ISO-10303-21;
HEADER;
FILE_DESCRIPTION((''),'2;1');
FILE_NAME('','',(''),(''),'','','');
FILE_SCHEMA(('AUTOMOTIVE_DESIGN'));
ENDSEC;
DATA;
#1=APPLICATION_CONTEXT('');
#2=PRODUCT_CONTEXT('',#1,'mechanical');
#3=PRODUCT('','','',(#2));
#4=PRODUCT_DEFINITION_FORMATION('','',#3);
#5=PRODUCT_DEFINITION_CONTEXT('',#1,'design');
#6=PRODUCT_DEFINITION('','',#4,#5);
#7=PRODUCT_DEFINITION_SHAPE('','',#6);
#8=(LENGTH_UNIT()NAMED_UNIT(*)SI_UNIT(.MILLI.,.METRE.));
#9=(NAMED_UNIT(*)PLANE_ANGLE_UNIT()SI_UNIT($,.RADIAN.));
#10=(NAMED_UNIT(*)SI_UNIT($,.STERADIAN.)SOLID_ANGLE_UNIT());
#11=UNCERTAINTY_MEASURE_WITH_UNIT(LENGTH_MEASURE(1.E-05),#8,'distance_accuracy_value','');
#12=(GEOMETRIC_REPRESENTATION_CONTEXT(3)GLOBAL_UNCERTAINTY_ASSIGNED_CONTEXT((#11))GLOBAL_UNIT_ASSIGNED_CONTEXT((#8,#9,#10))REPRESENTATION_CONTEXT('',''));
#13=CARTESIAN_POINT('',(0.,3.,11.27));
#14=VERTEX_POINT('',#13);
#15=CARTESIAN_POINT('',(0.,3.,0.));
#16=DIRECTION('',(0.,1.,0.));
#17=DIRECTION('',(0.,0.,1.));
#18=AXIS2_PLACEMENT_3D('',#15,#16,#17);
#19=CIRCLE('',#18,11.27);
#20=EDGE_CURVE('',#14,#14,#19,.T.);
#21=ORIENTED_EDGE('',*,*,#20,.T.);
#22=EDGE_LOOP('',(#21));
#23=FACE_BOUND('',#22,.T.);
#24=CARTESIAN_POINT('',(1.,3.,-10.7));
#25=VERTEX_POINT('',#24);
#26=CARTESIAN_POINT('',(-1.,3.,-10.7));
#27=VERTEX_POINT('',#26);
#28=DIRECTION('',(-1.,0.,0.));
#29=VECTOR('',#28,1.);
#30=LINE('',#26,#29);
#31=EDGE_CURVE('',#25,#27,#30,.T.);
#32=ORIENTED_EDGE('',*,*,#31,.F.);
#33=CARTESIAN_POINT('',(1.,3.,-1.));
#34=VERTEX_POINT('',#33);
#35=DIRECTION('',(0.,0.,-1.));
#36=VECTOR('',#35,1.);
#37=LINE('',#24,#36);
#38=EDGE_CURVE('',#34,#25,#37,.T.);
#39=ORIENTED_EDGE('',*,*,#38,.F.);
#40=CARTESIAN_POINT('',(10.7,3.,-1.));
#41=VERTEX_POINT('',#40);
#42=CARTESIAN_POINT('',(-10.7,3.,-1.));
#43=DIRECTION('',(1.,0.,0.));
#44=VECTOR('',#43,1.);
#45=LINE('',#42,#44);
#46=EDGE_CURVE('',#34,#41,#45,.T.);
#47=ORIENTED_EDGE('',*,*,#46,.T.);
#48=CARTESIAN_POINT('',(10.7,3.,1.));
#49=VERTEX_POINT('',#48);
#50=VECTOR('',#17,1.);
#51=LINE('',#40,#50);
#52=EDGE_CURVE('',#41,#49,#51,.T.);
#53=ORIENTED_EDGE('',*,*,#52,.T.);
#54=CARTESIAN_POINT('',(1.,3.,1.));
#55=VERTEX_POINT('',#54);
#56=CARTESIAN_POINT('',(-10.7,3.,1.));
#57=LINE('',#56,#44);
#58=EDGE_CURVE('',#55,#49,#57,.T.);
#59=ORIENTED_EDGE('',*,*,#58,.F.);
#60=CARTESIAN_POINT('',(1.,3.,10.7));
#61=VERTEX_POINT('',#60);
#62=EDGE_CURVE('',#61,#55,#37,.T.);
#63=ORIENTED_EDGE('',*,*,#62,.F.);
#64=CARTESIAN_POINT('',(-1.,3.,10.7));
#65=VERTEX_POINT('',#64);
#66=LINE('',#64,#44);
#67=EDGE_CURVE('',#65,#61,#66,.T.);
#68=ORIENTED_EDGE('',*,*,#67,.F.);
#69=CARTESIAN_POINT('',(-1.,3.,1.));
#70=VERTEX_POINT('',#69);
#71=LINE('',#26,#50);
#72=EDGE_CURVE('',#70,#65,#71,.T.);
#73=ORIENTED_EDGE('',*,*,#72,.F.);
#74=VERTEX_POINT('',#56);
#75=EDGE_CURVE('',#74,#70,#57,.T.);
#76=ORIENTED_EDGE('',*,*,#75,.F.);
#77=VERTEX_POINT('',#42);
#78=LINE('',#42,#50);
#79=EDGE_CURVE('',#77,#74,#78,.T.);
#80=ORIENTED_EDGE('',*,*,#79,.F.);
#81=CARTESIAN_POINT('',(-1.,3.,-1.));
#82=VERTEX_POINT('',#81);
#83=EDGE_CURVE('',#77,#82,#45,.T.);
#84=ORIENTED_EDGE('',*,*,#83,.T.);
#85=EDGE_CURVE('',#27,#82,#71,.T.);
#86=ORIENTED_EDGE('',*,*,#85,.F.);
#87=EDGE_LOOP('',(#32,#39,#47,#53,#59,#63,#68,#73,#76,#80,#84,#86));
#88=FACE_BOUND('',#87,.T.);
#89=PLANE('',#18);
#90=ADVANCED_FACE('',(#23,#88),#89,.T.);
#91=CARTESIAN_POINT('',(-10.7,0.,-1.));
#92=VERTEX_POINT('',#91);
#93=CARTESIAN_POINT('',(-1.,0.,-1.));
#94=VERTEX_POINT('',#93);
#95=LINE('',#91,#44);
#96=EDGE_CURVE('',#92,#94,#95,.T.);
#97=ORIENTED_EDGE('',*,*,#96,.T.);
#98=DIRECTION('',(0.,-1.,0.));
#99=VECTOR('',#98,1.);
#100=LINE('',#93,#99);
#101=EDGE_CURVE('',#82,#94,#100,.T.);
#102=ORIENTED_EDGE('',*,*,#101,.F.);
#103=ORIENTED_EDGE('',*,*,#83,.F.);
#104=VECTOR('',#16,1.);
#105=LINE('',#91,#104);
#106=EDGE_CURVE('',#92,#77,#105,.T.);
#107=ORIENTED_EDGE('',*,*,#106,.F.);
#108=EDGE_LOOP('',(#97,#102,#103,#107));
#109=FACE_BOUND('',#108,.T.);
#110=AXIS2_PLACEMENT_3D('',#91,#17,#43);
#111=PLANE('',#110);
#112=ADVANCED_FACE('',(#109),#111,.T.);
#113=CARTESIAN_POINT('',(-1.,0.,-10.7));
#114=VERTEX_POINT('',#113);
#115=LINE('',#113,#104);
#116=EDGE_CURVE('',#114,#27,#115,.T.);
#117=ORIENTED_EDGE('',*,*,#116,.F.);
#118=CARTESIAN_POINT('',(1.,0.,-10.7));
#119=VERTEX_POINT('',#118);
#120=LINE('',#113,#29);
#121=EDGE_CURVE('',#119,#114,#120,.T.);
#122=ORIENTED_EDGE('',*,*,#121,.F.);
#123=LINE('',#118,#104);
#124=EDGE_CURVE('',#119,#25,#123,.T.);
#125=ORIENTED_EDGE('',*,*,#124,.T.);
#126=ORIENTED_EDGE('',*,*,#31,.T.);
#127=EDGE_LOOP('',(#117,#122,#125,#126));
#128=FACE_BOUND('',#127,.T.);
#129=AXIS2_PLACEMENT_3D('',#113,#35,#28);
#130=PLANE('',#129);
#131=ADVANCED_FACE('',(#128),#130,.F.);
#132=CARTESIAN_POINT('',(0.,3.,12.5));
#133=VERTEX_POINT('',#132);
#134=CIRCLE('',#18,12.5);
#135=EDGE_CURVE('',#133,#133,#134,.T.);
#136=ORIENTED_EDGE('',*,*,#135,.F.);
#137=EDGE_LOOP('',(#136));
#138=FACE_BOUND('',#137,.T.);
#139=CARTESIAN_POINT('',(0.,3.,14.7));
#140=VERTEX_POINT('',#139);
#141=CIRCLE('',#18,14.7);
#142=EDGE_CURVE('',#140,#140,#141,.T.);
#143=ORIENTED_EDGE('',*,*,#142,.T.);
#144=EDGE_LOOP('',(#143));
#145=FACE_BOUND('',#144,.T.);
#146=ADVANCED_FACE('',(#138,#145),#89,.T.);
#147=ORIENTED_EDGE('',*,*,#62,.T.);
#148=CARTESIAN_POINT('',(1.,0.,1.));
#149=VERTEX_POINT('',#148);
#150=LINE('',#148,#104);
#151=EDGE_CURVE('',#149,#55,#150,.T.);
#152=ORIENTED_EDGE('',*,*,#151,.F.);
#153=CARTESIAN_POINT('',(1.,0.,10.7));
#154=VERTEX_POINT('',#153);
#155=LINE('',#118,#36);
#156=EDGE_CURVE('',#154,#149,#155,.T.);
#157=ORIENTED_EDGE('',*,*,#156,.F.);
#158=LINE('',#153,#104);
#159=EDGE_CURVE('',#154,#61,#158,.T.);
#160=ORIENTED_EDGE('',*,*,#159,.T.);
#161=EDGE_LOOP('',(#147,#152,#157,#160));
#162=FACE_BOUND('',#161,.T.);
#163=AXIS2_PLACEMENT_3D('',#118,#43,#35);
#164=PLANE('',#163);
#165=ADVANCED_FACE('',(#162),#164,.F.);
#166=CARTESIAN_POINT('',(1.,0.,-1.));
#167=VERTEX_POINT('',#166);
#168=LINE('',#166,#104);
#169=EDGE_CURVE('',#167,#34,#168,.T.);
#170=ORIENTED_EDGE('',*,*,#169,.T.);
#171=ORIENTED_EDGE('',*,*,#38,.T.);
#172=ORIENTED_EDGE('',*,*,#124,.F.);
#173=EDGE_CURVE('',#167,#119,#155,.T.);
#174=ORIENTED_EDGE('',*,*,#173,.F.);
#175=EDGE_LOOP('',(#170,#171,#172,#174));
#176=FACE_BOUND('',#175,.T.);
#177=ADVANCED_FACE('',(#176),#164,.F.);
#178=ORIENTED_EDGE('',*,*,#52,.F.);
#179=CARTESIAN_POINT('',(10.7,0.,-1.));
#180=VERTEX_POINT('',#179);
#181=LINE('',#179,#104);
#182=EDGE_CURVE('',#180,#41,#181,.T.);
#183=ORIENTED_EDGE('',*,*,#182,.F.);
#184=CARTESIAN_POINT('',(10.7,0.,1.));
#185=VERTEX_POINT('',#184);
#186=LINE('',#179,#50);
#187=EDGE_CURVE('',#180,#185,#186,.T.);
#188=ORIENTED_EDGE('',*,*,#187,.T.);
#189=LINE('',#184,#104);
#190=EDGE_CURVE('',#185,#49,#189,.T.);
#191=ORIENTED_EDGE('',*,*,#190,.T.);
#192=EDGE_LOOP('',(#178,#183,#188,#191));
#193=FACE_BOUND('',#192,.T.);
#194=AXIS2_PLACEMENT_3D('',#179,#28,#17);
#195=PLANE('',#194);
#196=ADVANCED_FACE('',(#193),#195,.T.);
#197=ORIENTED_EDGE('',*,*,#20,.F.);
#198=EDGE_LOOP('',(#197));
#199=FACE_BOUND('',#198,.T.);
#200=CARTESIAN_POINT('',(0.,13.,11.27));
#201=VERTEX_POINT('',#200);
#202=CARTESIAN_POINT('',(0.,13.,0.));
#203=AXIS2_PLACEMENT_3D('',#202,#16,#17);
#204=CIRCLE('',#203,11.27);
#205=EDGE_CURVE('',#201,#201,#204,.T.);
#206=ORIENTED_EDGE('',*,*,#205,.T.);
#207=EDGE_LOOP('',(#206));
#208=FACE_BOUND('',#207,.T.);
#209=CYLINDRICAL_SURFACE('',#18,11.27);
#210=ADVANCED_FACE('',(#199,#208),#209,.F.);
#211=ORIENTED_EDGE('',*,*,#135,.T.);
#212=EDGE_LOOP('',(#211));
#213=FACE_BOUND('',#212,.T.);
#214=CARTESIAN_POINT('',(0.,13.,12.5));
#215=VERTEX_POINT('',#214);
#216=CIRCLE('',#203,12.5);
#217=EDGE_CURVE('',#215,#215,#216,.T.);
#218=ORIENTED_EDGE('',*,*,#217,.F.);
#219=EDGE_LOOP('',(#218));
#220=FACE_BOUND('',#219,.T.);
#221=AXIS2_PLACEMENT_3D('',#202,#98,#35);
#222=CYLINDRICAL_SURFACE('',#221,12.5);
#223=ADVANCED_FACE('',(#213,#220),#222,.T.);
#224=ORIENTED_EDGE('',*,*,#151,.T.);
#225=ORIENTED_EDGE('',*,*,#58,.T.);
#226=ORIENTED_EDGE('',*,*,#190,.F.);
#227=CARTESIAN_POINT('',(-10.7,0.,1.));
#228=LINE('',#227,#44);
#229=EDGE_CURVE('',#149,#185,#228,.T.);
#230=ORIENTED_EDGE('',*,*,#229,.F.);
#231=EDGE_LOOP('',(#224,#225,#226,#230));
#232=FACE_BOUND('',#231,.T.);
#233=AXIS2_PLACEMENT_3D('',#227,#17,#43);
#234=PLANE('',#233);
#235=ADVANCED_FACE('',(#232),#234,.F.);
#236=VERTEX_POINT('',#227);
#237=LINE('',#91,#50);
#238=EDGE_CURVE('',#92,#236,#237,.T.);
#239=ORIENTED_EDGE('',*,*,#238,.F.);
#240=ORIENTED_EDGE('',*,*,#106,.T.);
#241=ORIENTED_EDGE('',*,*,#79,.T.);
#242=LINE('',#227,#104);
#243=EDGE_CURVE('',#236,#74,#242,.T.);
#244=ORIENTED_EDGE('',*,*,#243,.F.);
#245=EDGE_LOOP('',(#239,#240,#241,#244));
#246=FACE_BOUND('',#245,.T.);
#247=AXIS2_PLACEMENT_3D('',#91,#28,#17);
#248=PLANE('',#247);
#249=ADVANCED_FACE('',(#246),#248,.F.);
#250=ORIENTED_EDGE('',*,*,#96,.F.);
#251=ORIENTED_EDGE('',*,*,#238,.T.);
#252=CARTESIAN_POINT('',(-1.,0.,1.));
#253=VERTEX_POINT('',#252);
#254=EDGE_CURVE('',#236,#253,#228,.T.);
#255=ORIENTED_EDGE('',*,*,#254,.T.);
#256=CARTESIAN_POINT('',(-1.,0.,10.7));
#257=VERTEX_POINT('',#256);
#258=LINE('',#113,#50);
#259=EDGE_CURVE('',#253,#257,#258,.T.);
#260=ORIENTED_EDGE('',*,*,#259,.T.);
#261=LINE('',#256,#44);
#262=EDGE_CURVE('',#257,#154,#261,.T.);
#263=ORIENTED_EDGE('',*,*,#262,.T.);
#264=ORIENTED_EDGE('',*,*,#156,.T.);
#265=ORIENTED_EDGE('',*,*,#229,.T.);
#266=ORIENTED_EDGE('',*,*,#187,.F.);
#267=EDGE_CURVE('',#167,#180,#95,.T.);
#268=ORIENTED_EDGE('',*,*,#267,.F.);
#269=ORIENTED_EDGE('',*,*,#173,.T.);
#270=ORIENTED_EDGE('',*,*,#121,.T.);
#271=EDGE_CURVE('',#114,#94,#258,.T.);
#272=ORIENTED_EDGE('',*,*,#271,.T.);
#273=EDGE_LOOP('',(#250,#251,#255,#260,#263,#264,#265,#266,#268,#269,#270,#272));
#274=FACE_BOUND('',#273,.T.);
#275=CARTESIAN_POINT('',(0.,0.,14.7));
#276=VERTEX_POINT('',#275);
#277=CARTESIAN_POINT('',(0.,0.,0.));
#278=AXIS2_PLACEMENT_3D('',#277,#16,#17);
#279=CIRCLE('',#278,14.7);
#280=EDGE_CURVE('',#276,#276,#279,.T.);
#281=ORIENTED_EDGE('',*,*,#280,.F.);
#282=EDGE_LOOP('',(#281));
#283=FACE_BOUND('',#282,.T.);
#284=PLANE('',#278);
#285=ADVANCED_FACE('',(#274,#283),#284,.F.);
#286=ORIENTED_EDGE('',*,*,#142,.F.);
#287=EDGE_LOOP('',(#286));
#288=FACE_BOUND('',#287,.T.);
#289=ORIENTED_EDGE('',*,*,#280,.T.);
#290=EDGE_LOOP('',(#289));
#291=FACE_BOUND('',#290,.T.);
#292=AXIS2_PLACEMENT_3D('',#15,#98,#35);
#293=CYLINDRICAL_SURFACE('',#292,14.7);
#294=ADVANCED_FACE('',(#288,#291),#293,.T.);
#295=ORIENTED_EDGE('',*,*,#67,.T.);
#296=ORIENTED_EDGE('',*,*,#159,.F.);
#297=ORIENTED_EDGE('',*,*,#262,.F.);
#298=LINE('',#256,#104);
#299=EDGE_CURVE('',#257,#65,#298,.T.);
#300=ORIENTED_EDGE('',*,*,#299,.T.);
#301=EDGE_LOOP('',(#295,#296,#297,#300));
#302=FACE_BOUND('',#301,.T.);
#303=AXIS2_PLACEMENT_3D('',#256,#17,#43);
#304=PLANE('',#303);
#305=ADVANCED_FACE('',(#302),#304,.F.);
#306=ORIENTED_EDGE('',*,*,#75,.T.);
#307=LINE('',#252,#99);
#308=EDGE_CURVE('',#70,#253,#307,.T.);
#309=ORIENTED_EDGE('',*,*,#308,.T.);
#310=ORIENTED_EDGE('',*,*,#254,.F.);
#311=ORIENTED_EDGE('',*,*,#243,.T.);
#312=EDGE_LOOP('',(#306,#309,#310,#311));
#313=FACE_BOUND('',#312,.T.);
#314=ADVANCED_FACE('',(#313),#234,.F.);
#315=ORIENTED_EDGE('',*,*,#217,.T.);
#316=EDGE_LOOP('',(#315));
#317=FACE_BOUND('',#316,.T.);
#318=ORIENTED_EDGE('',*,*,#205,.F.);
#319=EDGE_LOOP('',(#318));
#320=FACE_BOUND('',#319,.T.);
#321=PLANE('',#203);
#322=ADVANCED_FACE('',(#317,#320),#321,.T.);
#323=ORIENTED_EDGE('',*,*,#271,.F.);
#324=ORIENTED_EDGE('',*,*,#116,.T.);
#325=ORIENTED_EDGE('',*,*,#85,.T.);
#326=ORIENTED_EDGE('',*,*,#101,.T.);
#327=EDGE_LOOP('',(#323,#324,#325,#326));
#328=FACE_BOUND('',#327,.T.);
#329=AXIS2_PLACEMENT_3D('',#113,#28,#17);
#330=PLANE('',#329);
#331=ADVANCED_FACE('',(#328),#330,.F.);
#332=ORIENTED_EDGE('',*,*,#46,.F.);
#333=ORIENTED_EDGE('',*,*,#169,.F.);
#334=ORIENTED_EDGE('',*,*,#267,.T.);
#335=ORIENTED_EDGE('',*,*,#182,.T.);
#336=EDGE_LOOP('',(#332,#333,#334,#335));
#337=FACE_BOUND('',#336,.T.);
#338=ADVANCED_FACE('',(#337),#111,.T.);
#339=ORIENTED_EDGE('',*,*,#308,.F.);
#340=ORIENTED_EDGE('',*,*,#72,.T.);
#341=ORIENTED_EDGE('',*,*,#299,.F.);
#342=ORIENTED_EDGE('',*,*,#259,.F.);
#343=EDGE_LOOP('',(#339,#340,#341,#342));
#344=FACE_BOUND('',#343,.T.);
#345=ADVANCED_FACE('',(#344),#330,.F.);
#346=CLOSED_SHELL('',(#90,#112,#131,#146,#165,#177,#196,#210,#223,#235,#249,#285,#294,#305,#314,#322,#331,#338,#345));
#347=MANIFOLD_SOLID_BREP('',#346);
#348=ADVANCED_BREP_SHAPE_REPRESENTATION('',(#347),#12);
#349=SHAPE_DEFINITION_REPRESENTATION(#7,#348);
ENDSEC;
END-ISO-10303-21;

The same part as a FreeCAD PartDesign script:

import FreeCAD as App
import Part
import Sketcher

V = App.Vector
Q = App.Units.Quantity

doc = App.newDocument("Part")
params = doc.addObject("Spreadsheet::Sheet", "Params")
for row, (alias, value) in enumerate([
    ("sketch1_diameter", "29.4 mm"),
    ("pad1_length", "3 mm"),
    ("sketch2_height", "2 mm"),
    ("sketch2_width", "21.4 mm"),
    ("pocket1_length", "3 mm"),
    ("sketch3_width", "2 mm"),
    ("sketch3_height", "21.4 mm"),
    ("pocket2_length", "3 mm"),
    ("sketch4_diameter", "25 mm"),
    ("pad2_length", "10 mm"),
    ("sketch5_diameter", "22.54 mm"),
    ("pocket3_length", "10 mm"),
], start=1):
    params.set(f"A{row}", alias)
    params.set(f"B{row}", "=" + value)
    params.setAlias(f"B{row}", alias)

body = doc.addObject("PartDesign::Body", "Body")

sketch1 = body.newObject("Sketcher::SketchObject", "Sketch")
sketch1.AttachmentSupport = (doc.getObject("XZ_Plane"), [""])
sketch1.MapMode = "FlatFace"
sketch1.addGeometry(Part.Circle(V(0, 0, 0), V(0, 0, 1), 15), False)
sketch1.addConstraint([
    Sketcher.Constraint("Coincident", 0, 3, -1, 1),
    Sketcher.Constraint("Diameter", 0, Q("29.4 mm")),
])
sketch1.setExpression("Constraints[1]", "Params.sketch1_diameter")
pad1 = body.newObject("PartDesign::Pad", "Pad")
pad1.Profile = sketch1
pad1.setExpression("Length", "Params.pad1_length")
pad1.Reversed = True

sketch2 = body.newObject("Sketcher::SketchObject", "Sketch001")
sketch2.AttachmentSupport = (doc.getObject("XZ_Plane"), [""])
sketch2.MapMode = "FlatFace"
sketch2.AttachmentOffset = App.Placement(V(0, 0, -3), App.Rotation())
sketch2.addGeometry([
    Part.LineSegment(V(-10.7, -1, 0), V(-10.7, 1, 0)),
    Part.LineSegment(V(-10.7, 1, 0), V(10.7, 1, 0)),
    Part.LineSegment(V(10.7, 1, 0), V(10.7, -1, 0)),
    Part.LineSegment(V(10.7, -1, 0), V(-10.7, -1, 0)),
], False)
sketch2.addConstraint([
    Sketcher.Constraint("Coincident", 0, 2, 1, 1),
    Sketcher.Constraint("Coincident", 1, 2, 2, 1),
    Sketcher.Constraint("Coincident", 2, 2, 3, 1),
    Sketcher.Constraint("Coincident", 3, 2, 0, 1),
    Sketcher.Constraint("Vertical", 0),
    Sketcher.Constraint("Horizontal", 1),
    Sketcher.Constraint("Vertical", 2),
    Sketcher.Constraint("Horizontal", 3),
    Sketcher.Constraint("Symmetric", 0, 2, 2, 2, -1, 1),
    Sketcher.Constraint("DistanceY", 0, 1, 0, 2, Q("2 mm")),
    Sketcher.Constraint("DistanceX", 1, 1, 1, 2, Q("21.4 mm")),
])
sketch2.setExpression("Constraints[9]", "Params.sketch2_height")
sketch2.setExpression("Constraints[10]", "Params.sketch2_width")
pocket1 = body.newObject("PartDesign::Pocket", "Pocket")
pocket1.Profile = sketch2
pocket1.setExpression("Length", "Params.pocket1_length")
pocket1.Reversed = True

sketch3 = body.newObject("Sketcher::SketchObject", "Sketch002")
sketch3.AttachmentSupport = (doc.getObject("XZ_Plane"), [""])
sketch3.MapMode = "FlatFace"
sketch3.AttachmentOffset = App.Placement(V(0, 0, -3), App.Rotation())
sketch3.addGeometry([
    Part.LineSegment(V(-1, -10.7, 0), V(-1, 10.7, 0)),
    Part.LineSegment(V(-1, 10.7, 0), V(1, 10.7, 0)),
    Part.LineSegment(V(1, 10.7, 0), V(1, -10.7, 0)),
    Part.LineSegment(V(1, -10.7, 0), V(-1, -10.7, 0)),
], False)
sketch3.addConstraint([
    Sketcher.Constraint("Coincident", 0, 2, 1, 1),
    Sketcher.Constraint("Coincident", 1, 2, 2, 1),
    Sketcher.Constraint("Coincident", 2, 2, 3, 1),
    Sketcher.Constraint("Coincident", 3, 2, 0, 1),
    Sketcher.Constraint("Vertical", 0),
    Sketcher.Constraint("Horizontal", 1),
    Sketcher.Constraint("Vertical", 2),
    Sketcher.Constraint("Horizontal", 3),
    Sketcher.Constraint("Symmetric", 0, 2, 2, 2, -1, 1),
    Sketcher.Constraint("DistanceX", 1, 1, 1, 2, Q("2 mm")),
    Sketcher.Constraint("DistanceY", 0, 1, 0, 2, Q("21.4 mm")),
])
sketch3.setExpression("Constraints[9]", "Params.sketch3_width")
sketch3.setExpression("Constraints[10]", "Params.sketch3_height")
pocket2 = body.newObject("PartDesign::Pocket", "Pocket001")
pocket2.Profile = sketch3
pocket2.setExpression("Length", "Params.pocket2_length")
pocket2.Reversed = True

sketch4 = body.newObject("Sketcher::SketchObject", "Sketch003")
sketch4.AttachmentSupport = (doc.getObject("XZ_Plane"), [""])
sketch4.MapMode = "FlatFace"
sketch4.AttachmentOffset = App.Placement(V(0, 0, -3), App.Rotation())
sketch4.addGeometry(Part.Circle(V(0, 0, 0), V(0, 0, 1), 12), False)
sketch4.addConstraint([
    Sketcher.Constraint("Coincident", 0, 3, -1, 1),
    Sketcher.Constraint("Diameter", 0, Q("25 mm")),
])
sketch4.setExpression("Constraints[1]", "Params.sketch4_diameter")
pad2 = body.newObject("PartDesign::Pad", "Pad001")
pad2.Profile = sketch4
pad2.setExpression("Length", "Params.pad2_length")
pad2.Reversed = True

sketch5 = body.newObject("Sketcher::SketchObject", "Sketch004")
sketch5.AttachmentSupport = (doc.getObject("XZ_Plane"), [""])
sketch5.MapMode = "FlatFace"
sketch5.AttachmentOffset = App.Placement(V(0, 0, -13), App.Rotation())
sketch5.addGeometry(Part.Circle(V(0, 0, 0), V(0, 0, 1), 11), False)
sketch5.addConstraint([
    Sketcher.Constraint("Coincident", 0, 3, -1, 1),
    Sketcher.Constraint("Diameter", 0, Q("22.54 mm")),
])
sketch5.setExpression("Constraints[1]", "Params.sketch5_diameter")
pocket3 = body.newObject("PartDesign::Pocket", "Pocket002")
pocket3.Profile = sketch5
pocket3.setExpression("Length", "Params.pocket3_length")
pocket3.Reversed = True

doc.recompute()
